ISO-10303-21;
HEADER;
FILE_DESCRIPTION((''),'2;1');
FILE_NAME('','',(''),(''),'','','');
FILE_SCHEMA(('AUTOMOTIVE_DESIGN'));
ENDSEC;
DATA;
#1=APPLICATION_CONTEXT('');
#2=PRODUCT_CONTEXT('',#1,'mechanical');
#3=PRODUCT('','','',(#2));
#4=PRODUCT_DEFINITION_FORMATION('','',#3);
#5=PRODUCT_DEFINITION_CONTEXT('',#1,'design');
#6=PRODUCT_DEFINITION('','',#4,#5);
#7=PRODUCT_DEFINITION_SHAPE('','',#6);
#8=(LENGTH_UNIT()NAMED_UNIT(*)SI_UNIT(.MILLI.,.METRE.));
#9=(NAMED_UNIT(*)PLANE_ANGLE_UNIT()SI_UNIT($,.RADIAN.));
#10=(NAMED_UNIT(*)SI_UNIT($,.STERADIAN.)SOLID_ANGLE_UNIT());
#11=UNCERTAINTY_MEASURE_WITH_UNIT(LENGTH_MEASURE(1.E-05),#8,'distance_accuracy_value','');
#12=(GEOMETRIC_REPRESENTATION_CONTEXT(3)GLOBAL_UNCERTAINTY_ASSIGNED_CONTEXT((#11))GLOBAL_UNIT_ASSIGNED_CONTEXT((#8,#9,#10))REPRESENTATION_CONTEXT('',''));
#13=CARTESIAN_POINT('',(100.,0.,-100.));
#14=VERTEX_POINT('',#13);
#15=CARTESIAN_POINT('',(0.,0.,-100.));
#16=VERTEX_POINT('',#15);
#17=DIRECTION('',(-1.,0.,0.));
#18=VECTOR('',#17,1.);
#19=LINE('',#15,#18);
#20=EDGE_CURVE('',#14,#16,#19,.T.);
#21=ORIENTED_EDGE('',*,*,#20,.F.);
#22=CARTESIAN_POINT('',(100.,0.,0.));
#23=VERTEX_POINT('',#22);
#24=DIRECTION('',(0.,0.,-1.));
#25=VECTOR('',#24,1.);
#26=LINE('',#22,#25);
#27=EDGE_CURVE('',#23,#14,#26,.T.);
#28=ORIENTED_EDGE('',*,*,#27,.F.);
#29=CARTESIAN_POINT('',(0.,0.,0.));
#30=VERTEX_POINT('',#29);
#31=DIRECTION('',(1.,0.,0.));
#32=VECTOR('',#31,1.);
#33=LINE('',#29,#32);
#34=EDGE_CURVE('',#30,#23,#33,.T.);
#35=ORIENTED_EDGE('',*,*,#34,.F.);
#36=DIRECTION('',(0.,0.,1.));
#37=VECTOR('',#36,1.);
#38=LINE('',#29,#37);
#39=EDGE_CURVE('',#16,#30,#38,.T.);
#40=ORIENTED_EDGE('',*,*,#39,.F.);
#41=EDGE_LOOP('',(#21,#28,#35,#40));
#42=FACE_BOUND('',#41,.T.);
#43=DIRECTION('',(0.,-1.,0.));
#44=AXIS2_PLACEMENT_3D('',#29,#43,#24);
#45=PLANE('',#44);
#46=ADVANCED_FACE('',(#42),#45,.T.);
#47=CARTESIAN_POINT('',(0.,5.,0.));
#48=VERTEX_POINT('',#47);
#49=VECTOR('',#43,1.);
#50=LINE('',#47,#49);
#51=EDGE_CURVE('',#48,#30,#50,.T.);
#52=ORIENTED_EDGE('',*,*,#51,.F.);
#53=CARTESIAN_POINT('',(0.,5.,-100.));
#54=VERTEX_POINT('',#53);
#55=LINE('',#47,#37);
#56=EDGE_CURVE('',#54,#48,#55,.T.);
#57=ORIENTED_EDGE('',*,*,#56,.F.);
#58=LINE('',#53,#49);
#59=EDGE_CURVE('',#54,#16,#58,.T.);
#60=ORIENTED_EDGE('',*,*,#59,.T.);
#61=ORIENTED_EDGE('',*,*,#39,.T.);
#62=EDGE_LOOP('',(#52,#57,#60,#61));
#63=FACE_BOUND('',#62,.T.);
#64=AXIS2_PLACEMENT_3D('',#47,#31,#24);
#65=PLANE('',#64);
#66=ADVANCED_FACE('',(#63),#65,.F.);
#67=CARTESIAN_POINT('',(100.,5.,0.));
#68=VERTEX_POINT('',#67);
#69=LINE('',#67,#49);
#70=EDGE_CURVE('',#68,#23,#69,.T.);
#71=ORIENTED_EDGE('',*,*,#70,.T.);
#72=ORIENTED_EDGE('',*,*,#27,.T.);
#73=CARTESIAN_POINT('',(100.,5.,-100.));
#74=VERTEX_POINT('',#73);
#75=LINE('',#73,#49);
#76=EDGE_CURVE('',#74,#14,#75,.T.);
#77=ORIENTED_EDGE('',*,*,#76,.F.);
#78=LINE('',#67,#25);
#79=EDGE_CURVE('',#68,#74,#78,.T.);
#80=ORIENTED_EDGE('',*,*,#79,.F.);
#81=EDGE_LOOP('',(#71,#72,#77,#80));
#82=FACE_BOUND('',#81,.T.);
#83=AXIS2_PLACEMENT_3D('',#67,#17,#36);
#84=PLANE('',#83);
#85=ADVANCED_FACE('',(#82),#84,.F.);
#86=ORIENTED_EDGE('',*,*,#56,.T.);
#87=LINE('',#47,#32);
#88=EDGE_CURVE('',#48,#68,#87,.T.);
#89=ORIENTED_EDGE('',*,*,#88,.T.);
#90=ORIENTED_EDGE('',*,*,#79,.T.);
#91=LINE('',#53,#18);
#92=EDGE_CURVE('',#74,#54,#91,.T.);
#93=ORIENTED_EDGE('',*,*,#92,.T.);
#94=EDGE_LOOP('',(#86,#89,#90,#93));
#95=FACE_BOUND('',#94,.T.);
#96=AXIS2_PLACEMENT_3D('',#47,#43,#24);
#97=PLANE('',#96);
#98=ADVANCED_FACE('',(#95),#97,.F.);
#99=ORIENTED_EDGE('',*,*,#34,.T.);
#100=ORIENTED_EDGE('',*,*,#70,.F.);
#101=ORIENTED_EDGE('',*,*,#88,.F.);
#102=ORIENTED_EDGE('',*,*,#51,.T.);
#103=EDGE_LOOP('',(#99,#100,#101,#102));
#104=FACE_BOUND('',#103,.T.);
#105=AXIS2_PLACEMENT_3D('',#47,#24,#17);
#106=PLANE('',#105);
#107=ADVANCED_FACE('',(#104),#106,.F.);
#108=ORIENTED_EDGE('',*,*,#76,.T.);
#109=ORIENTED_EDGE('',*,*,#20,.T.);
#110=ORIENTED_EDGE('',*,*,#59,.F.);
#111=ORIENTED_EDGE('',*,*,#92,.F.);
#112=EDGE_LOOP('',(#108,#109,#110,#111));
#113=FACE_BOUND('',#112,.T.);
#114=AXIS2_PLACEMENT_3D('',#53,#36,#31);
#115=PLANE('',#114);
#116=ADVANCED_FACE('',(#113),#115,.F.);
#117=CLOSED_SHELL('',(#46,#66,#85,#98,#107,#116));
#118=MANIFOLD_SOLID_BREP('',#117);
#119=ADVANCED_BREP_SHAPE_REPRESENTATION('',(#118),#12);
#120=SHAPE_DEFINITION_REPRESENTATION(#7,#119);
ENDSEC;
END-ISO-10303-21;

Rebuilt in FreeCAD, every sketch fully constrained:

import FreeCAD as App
import Part
import Sketcher
from FreeCAD import Vector


def add_polygon(sketch, points):
    """Adds a closed chain of lines whose ends are joined by coincident constraints."""
    first, n = sketch.GeometryCount, len(points)
    for a, b in zip(points, points[1:] + points[:1]):
        sketch.addGeometry(Part.LineSegment(App.Vector(*a, 0), App.Vector(*b, 0)), False)
    for i in range(n):
        sketch.addConstraint(Sketcher.Constraint("Coincident", first + i, 2, first + (i + 1) % n, 1))

doc = App.newDocument("Part")
body = doc.addObject("PartDesign::Body", "Body")

# Sketch on XZ plane
sketch1 = body.newObject("Sketcher::SketchObject", "Sketch")
sketch1.AttachmentSupport = (doc.getObject("XZ_Plane"), [""])
sketch1.MapMode = "FlatFace"
add_polygon(sketch1, [(0, -100), (0, 0), (100, 0), (100, -100)])  # lines 0-3
sketch1.addConstraint([
    Sketcher.Constraint("Vertical", 0),
    Sketcher.Constraint("Horizontal", 1),
    Sketcher.Constraint("Vertical", 2),
    Sketcher.Constraint("Horizontal", 3),
    Sketcher.Constraint("Coincident", 0, 2, -1, 1),
    Sketcher.Constraint("Equal", 3, 0),
    Sketcher.Constraint("DistanceX", 1, 1, 1, 2, 100.0),
])
pad1 = body.newObject("PartDesign::Pad", "Pad")
pad1.Profile = sketch1
pad1.Length = 5
pad1.Reversed = True

doc.recompute()
